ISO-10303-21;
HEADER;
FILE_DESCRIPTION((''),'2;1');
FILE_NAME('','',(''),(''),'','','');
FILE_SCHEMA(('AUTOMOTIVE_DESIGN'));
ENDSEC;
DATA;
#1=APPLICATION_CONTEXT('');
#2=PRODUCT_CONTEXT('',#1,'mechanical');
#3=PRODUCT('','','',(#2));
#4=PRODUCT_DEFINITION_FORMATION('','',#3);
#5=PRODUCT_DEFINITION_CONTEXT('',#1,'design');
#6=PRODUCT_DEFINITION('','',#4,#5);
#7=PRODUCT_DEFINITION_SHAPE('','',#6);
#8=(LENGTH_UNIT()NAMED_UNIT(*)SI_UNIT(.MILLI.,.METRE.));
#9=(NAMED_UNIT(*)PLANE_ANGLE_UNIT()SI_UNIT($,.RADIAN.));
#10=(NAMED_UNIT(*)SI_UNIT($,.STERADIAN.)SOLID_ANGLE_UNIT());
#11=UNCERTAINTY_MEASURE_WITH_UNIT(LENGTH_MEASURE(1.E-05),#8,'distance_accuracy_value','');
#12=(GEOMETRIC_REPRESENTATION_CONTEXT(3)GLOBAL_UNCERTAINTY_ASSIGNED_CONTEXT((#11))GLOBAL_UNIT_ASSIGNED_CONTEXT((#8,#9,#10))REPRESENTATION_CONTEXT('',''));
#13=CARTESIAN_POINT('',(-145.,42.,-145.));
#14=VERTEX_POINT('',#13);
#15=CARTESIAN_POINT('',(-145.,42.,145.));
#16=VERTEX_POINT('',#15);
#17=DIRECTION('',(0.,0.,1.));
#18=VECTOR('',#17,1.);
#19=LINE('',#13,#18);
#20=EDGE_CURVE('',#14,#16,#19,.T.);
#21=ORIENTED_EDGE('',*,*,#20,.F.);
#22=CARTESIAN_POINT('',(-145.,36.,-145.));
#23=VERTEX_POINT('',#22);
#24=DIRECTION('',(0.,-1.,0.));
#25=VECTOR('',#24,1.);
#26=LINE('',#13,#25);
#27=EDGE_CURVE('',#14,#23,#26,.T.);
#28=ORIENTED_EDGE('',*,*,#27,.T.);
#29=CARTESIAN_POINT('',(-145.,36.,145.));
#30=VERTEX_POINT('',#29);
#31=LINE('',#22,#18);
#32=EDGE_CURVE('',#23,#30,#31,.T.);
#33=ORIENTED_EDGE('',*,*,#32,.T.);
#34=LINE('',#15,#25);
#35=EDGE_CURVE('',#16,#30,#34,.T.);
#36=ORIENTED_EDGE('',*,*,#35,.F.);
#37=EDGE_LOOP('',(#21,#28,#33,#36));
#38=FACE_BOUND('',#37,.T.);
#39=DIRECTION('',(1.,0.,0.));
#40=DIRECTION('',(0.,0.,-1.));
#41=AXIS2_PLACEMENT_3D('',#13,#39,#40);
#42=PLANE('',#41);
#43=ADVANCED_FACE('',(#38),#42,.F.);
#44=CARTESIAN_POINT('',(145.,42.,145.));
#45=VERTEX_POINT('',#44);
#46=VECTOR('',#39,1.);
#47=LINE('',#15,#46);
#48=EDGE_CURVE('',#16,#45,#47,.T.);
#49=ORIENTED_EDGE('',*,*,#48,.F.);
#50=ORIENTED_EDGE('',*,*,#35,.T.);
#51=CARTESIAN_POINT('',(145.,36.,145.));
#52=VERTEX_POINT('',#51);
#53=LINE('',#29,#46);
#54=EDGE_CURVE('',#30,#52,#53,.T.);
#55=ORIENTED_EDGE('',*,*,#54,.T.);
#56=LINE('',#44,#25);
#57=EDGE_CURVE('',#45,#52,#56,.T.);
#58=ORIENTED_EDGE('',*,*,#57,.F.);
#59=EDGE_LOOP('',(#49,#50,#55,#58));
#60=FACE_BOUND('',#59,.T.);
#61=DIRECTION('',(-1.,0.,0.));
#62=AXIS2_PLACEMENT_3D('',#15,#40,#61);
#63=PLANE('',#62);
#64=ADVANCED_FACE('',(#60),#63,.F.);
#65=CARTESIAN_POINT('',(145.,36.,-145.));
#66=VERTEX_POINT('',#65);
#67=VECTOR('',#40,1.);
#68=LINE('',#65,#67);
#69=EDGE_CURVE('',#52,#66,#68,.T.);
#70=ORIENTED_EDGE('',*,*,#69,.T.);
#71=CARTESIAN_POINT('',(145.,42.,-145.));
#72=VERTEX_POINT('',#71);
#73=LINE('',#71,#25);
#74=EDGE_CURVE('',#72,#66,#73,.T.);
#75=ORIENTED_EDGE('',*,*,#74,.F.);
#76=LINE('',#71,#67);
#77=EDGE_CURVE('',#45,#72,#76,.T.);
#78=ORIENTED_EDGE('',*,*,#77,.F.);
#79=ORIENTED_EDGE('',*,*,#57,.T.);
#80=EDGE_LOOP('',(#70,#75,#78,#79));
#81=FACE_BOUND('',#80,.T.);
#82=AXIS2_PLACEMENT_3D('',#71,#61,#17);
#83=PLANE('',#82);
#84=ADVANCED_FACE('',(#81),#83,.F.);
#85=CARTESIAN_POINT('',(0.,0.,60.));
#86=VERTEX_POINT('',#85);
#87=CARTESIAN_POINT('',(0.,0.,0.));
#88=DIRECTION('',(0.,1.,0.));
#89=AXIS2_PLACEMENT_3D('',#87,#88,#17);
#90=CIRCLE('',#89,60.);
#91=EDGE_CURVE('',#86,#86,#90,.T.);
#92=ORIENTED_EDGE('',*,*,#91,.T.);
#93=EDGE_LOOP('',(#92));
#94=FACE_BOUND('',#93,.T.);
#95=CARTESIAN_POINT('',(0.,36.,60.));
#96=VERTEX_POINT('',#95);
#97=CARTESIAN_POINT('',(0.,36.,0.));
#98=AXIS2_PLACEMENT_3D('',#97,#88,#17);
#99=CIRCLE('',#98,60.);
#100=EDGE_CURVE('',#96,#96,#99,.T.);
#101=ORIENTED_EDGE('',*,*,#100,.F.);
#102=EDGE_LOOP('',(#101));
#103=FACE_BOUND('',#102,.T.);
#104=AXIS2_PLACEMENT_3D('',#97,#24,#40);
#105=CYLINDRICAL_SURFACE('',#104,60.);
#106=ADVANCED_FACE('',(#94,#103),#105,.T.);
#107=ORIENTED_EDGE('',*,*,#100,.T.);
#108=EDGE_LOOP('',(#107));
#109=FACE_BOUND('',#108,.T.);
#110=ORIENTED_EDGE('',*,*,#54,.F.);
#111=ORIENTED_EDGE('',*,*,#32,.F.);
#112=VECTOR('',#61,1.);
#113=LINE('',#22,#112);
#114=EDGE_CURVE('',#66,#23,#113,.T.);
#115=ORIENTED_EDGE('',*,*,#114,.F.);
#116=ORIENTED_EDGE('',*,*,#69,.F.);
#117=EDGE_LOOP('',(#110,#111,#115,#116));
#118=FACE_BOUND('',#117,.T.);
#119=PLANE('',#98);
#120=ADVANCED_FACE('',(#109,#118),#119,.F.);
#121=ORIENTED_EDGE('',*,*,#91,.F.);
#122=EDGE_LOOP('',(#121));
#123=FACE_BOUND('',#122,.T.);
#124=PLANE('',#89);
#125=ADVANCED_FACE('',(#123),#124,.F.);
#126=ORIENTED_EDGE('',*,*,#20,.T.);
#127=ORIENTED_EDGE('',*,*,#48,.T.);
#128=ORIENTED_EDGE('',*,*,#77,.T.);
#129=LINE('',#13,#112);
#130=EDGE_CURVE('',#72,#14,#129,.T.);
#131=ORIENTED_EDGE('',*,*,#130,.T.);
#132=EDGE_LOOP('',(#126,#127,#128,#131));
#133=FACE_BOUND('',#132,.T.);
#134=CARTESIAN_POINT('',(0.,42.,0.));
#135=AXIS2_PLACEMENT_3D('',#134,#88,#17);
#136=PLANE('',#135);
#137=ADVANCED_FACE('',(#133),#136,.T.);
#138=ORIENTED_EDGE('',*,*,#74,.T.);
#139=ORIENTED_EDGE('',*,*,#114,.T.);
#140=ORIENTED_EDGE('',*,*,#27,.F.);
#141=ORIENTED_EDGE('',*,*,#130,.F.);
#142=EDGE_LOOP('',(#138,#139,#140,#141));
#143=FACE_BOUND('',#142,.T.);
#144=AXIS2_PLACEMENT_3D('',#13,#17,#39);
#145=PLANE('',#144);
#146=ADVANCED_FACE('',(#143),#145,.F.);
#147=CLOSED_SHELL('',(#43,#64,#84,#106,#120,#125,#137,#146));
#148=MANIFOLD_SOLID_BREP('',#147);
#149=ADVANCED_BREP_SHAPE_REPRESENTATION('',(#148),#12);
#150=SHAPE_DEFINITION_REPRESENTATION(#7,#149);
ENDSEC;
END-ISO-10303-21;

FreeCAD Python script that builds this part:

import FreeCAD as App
import Part
import Sketcher
from FreeCAD import Vector
Q = App.Units.Quantity


def add_polygon(sketch, points):
    """Adds a closed chain of lines whose ends are joined by coincident constraints."""
    first, n = sketch.GeometryCount, len(points)
    for a, b in zip(points, points[1:] + points[:1]):
        sketch.addGeometry(Part.LineSegment(App.Vector(*a, 0), App.Vector(*b, 0)), False)
    for i in range(n):
        sketch.addConstraint(Sketcher.Constraint("Coincident", first + i, 2, first + (i + 1) % n, 1))

doc = App.newDocument("Part")
body = doc.addObject("PartDesign::Body", "Body")

# Sketch on XZ plane
sketch1 = body.newObject("Sketcher::SketchObject", "Sketch")
sketch1.AttachmentSupport = (doc.getObject("XZ_Plane"), [""])
sketch1.MapMode = "FlatFace"
sketch1.addGeometry(Part.Circle(Vector(0, 0, 0), Vector(0, 0, 1), 60), False)
sketch1.addConstraint(Sketcher.Constraint("Coincident", 0, 3, -1, 1))
sketch1.addConstraint(Sketcher.Constraint("Diameter", 0, Q("120 mm")))
pad1 = body.newObject("PartDesign::Pad", "Pad")
pad1.Profile = sketch1
pad1.Length = 36
pad1.Reversed = True

# Sketch on XZ plane
sketch2 = body.newObject("Sketcher::SketchObject", "Sketch001")
sketch2.AttachmentSupport = (doc.getObject("XZ_Plane"), [""])
sketch2.MapMode = "FlatFace"
sketch2.AttachmentOffset = App.Placement(Vector(0, 0, -36), App.Rotation())
add_polygon(sketch2, [(-145, -145), (-145, 145), (145, 145), (145, -145)])  # lines 0-3
sketch2.addConstraint(Sketcher.Constraint("Vertical", 0))
sketch2.addConstraint(Sketcher.Constraint("Horizontal", 1))
sketch2.addConstraint(Sketcher.Constraint("Vertical", 2))
sketch2.addConstraint(Sketcher.Constraint("Horizontal", 3))
sketch2.addConstraint(Sketcher.Constraint("Symmetric", 0, 2, 2, 2, -1, 1))
sketch2.addConstraint(Sketcher.Constraint("Equal", 3, 0))
sketch2.addConstraint(Sketcher.Constraint("DistanceX", 1, 1, 1, 2, Q("290 mm")))
pad2 = body.newObject("PartDesign::Pad", "Pad001")
pad2.Profile = sketch2
pad2.Length = 6
pad2.Reversed = True

doc.recompute()
